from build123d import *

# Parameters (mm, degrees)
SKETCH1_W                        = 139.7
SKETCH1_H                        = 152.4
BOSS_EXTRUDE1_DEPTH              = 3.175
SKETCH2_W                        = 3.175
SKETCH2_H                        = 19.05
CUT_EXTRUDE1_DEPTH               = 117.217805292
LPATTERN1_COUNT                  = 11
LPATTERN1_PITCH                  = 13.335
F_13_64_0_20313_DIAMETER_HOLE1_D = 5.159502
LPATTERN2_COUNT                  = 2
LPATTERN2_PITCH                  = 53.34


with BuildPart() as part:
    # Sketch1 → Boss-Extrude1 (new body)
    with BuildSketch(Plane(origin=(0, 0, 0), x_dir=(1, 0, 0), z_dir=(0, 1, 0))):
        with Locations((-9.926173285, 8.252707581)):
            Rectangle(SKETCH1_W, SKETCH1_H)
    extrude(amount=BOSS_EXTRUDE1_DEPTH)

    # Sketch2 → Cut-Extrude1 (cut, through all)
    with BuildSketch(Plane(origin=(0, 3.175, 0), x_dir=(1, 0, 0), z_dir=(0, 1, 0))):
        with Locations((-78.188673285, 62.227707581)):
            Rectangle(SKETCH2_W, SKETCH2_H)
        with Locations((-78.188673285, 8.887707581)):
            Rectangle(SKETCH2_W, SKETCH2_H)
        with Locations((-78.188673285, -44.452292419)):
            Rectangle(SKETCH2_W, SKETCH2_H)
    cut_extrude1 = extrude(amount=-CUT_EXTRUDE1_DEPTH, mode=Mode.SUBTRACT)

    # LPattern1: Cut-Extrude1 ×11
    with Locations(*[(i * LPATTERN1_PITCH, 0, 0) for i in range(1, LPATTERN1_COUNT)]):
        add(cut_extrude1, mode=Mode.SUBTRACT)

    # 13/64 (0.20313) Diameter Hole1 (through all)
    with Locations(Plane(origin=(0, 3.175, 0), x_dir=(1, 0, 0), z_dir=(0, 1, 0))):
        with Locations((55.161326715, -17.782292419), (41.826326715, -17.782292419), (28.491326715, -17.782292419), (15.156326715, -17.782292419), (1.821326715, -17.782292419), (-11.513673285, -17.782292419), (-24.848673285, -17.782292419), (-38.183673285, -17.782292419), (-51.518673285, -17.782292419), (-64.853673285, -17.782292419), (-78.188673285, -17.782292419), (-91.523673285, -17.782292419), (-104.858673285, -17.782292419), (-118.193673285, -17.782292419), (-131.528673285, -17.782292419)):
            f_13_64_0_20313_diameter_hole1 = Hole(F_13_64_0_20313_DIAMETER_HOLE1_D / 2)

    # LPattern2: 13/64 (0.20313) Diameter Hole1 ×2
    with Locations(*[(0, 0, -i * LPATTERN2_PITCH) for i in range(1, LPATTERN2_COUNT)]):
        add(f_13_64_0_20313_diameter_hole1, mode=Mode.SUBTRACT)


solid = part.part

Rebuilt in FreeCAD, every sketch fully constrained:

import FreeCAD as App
import Part
import Sketcher
from FreeCAD import Vector
Q = App.Units.Quantity

doc = App.newDocument("Part")
body = doc.addObject("PartDesign::Body", "Body")

# Sketch on XZ plane
sketch1 = doc.addObject("Sketcher::SketchObject", "Sketch")
body.addObject(sketch1)
sketch1.AttachmentSupport = (doc.XZ_Plane, [""])
sketch1.MapMode = "FlatFace"
sketch1.addGeometry(Part.LineSegment(Vector(-79.776173, -84.452708, 0), Vector(-79.776173, 67.947292, 0)), False)
sketch1.addGeometry(Part.LineSegment(Vector(-79.776173, 67.947292, 0), Vector(59.923827, 67.947292, 0)), False)
sketch1.addGeometry(Part.LineSegment(Vector(59.923827, 67.947292, 0), Vector(59.923827, -84.452708, 0)), False)
sketch1.addGeometry(Part.LineSegment(Vector(59.923827, -84.452708, 0), Vector(-79.776173, -84.452708, 0)), False)
sketch1.addConstraint(Sketcher.Constraint("Coincident", 0, 2, 1, 1))
sketch1.addConstraint(Sketcher.Constraint("Coincident", 1, 2, 2, 1))
sketch1.addConstraint(Sketcher.Constraint("Coincident", 2, 2, 3, 1))
sketch1.addConstraint(Sketcher.Constraint("Coincident", 3, 2, 0, 1))
sketch1.addConstraint(Sketcher.Constraint("Vertical", 0))
sketch1.addConstraint(Sketcher.Constraint("Horizontal", 1))
sketch1.addConstraint(Sketcher.Constraint("Vertical", 2))
sketch1.addConstraint(Sketcher.Constraint("Horizontal", 3))
sketch1.addConstraint(Sketcher.Constraint("DistanceY", 0, 1, 0, 2, Q("6 in")))
sketch1.addConstraint(Sketcher.Constraint("DistanceX", 1, 1, 1, 2, Q("5.5 in")))
sketch1.addConstraint(Sketcher.Constraint("DistanceX", 0, 2, -1, 1, Q("79.776173 mm")))
sketch1.addConstraint(Sketcher.Constraint("DistanceY", -1, 1, 0, 2, Q("67.947292 mm")))
pad1 = doc.addObject("PartDesign::Pad", "Pad")
body.addObject(pad1)
pad1.Profile = sketch1
pad1.Length = Q("0.125 in")
pad1.Reversed = True

# Sketch on XZ plane
sketch2 = doc.addObject("Sketcher::SketchObject", "Sketch001")
body.addObject(sketch2)
sketch2.AttachmentSupport = (doc.XZ_Plane, [""])
sketch2.MapMode = "FlatFace"
sketch2.AttachmentOffset = App.Placement(Vector(0, 0, -0.125 * 25.4), App.Rotation())
sketch2.addGeometry(Part.LineSegment(Vector(-79.776173, -71.752708, 0), Vector(-79.776173, -52.702708, 0)), False)
sketch2.addGeometry(Part.LineSegment(Vector(-79.776173, -52.702708, 0), Vector(-76.601173, -52.702708, 0)), False)
sketch2.addGeometry(Part.LineSegment(Vector(-76.601173, -52.702708, 0), Vector(-76.601173, -71.752708, 0)), False)
sketch2.addGeometry(Part.LineSegment(Vector(-76.601173, -71.752708, 0), Vector(-79.776173, -71.752708, 0)), False)
sketch2.addGeometry(Part.LineSegment(Vector(-79.776173, -18.412708, 0), Vector(-79.776173, 0.637292, 0)), False)
sketch2.addGeometry(Part.LineSegment(Vector(-79.776173, 0.637292, 0), Vector(-76.601173, 0.637292, 0)), False)
sketch2.addGeometry(Part.LineSegment(Vector(-76.601173, 0.637292, 0), Vector(-76.601173, -18.412708, 0)), False)
sketch2.addGeometry(Part.LineSegment(Vector(-76.601173, -18.412708, 0), Vector(-79.776173, -18.412708, 0)), False)
sketch2.addGeometry(Part.LineSegment(Vector(-79.776173, 34.927292, 0), Vector(-79.776173, 53.977292, 0)), False)
sketch2.addGeometry(Part.LineSegment(Vector(-79.776173, 53.977292, 0), Vector(-76.601173, 53.977292, 0)), False)
sketch2.addGeometry(Part.LineSegment(Vector(-76.601173, 53.977292, 0), Vector(-76.601173, 34.927292, 0)), False)
sketch2.addGeometry(Part.LineSegment(Vector(-76.601173, 34.927292, 0), Vector(-79.776173, 34.927292, 0)), False)
sketch2.addConstraint(Sketcher.Constraint("Coincident", 0, 2, 1, 1))
sketch2.addConstraint(Sketcher.Constraint("Coincident", 1, 2, 2, 1))
sketch2.addConstraint(Sketcher.Constraint("Coincident", 2, 2, 3, 1))
sketch2.addConstraint(Sketcher.Constraint("Coincident", 3, 2, 0, 1))
sketch2.addConstraint(Sketcher.Constraint("Coincident", 4, 2, 5, 1))
sketch2.addConstraint(Sketcher.Constraint("Coincident", 5, 2, 6, 1))
sketch2.addConstraint(Sketcher.Constraint("Coincident", 6, 2, 7, 1))
sketch2.addConstraint(Sketcher.Constraint("Coincident", 7, 2, 4, 1))
sketch2.addConstraint(Sketcher.Constraint("Coincident", 8, 2, 9, 1))
sketch2.addConstraint(Sketcher.Constraint("Coincident", 9, 2, 10, 1))
sketch2.addConstraint(Sketcher.Constraint("Coincident", 10, 2, 11, 1))
sketch2.addConstraint(Sketcher.Constraint("Coincident", 11, 2, 8, 1))
sketch2.addConstraint(Sketcher.Constraint("Vertical", 0))
sketch2.addConstraint(Sketcher.Constraint("Horizontal", 1))
sketch2.addConstraint(Sketcher.Constraint("Vertical", 2))
sketch2.addConstraint(Sketcher.Constraint("Horizontal", 3))
sketch2.addConstraint(Sketcher.Constraint("Vertical", 4))
sketch2.addConstraint(Sketcher.Constraint("Horizontal", 5))
sketch2.addConstraint(Sketcher.Constraint("Vertical", 6))
sketch2.addConstraint(Sketcher.Constraint("Horizontal", 7))
sketch2.addConstraint(Sketcher.Constraint("Vertical", 8))
sketch2.addConstraint(Sketcher.Constraint("Horizontal", 9))
sketch2.addConstraint(Sketcher.Constraint("Vertical", 10))
sketch2.addConstraint(Sketcher.Constraint("Horizontal", 11))
sketch2.addConstraint(Sketcher.Constraint("Vertical", 3, 2, 4, 2))
sketch2.addConstraint(Sketcher.Constraint("Vertical", 2, 2, 5, 2))
sketch2.addConstraint(Sketcher.Constraint("Vertical", 7, 2, 8, 2))
sketch2.addConstraint(Sketcher.Constraint("Vertical", 6, 2, 9, 2))
sketch2.addConstraint(Sketcher.Constraint("Equal", 2, 4))
sketch2.addConstraint(Sketcher.Constraint("Equal", 6, 8))
sketch2.addConstraint(Sketcher.Constraint("DistanceY", 0, 1, 0, 2, Q("0.75 in")))
sketch2.addConstraint(Sketcher.Constraint("DistanceY", 0, 2, 4, 2, Q("2.1 in")))
sketch2.addConstraint(Sketcher.Constraint("DistanceY", 4, 2, 8, 2, Q("2.1 in")))
sketch2.addConstraint(Sketcher.Constraint("DistanceX", 1, 1, 1, 2, Q("0.125 in")))
sketch2.addConstraint(Sketcher.Constraint("DistanceX", 0, 2, -1, 1, Q("79.776173 mm")))
sketch2.addConstraint(Sketcher.Constraint("DistanceY", 0, 2, -1, 1, Q("52.702708 mm")))
pocket1 = doc.addObject("PartDesign::Pocket", "Pocket")
body.addObject(pocket1)
pocket1.Profile = sketch2
pocket1.Type = "ThroughAll"
pocket1.Reversed = True
doc.recompute()

linearpattern = doc.addObject("PartDesign::LinearPattern", "LinearPattern")
body.addObject(linearpattern)
linearpattern.Originals = [pocket1]
linearpattern.Direction = (doc.X_Axis, [""])
linearpattern.Mode = "offset"
linearpattern.Offset = Q("0.525 in")
linearpattern.Occurrences = 11
body.Tip = linearpattern

# Sketch on XZ plane
sketch3 = doc.addObject("Sketcher::SketchObject", "Sketch002")
body.addObject(sketch3)
sketch3.AttachmentSupport = (doc.XZ_Plane, [""])
sketch3.MapMode = "FlatFace"
sketch3.AttachmentOffset = App.Placement(Vector(0, 0, -0.125 * 25.4), App.Rotation())
sketch3.addGeometry(Part.Circle(Vector(55.161327, 17.782292, 0), Vector(0, 0, 1), 2.579751), False)
sketch3.addGeometry(Part.Circle(Vector(41.826327, 17.782292, 0), Vector(0, 0, 1), 2.579751), False)
sketch3.addGeometry(Part.Circle(Vector(28.491327, 17.782292, 0), Vector(0, 0, 1), 2.579751), False)
sketch3.addGeometry(Part.Circle(Vector(15.156327, 17.782292, 0), Vector(0, 0, 1), 2.579751), False)
sketch3.addGeometry(Part.Circle(Vector(1.821327, 17.782292, 0), Vector(0, 0, 1), 2.579751), False)
sketch3.addGeometry(Part.Circle(Vector(-11.513673, 17.782292, 0), Vector(0, 0, 1), 2.579751), False)
sketch3.addGeometry(Part.Circle(Vector(-24.848673, 17.782292, 0), Vector(0, 0, 1), 2.579751), False)
sketch3.addGeometry(Part.Circle(Vector(-38.183673, 17.782292, 0), Vector(0, 0, 1), 2.579751), False)
sketch3.addGeometry(Part.Circle(Vector(-51.518673, 17.782292, 0), Vector(0, 0, 1), 2.579751), False)
sketch3.addGeometry(Part.Circle(Vector(-64.853673, 17.782292, 0), Vector(0, 0, 1), 2.579751), False)
sketch3.addGeometry(Part.Circle(Vector(-78.188673, 17.782292, 0), Vector(0, 0, 1), 2.579751), False)
sketch3.addGeometry(Part.Circle(Vector(-91.523673, 17.782292, 0), Vector(0, 0, 1), 2.579751), False)
sketch3.addGeometry(Part.Circle(Vector(-104.858673, 17.782292, 0), Vector(0, 0, 1), 2.579751), False)
sketch3.addGeometry(Part.Circle(Vector(-118.193673, 17.782292, 0), Vector(0, 0, 1), 2.579751), False)
sketch3.addGeometry(Part.Circle(Vector(-131.528673, 17.782292, 0), Vector(0, 0, 1), 2.579751), False)
sketch3.addConstraint(Sketcher.Constraint("Equal", 0, 1))
sketch3.addConstraint(Sketcher.Constraint("Equal", 1, 2))
sketch3.addConstraint(Sketcher.Constraint("Equal", 2, 3))
sketch3.addConstraint(Sketcher.Constraint("Equal", 3, 4))
sketch3.addConstraint(Sketcher.Constraint("Equal", 4, 5))
sketch3.addConstraint(Sketcher.Constraint("Equal", 5, 6))
sketch3.addConstraint(Sketcher.Constraint("Equal", 6, 7))
sketch3.addConstraint(Sketcher.Constraint("Equal", 7, 8))
sketch3.addConstraint(Sketcher.Constraint("Equal", 8, 9))
sketch3.addConstraint(Sketcher.Constraint("Equal", 9, 10))
sketch3.addConstraint(Sketcher.Constraint("Equal", 10, 11))
sketch3.addConstraint(Sketcher.Constraint("Equal", 11, 12))
sketch3.addConstraint(Sketcher.Constraint("Equal", 12, 13))
sketch3.addConstraint(Sketcher.Constraint("Equal", 13, 14))
sketch3.addConstraint(Sketcher.Constraint("Horizontal", 0, 3, 1, 3))
sketch3.addConstraint(Sketcher.Constraint("Horizontal", 1, 3, 2, 3))
sketch3.addConstraint(Sketcher.Constraint("Horizontal", 2, 3, 3, 3))
sketch3.addConstraint(Sketcher.Constraint("Horizontal", 3, 3, 4, 3))
sketch3.addConstraint(Sketcher.Constraint("Horizontal", 4, 3, 5, 3))
sketch3.addConstraint(Sketcher.Constraint("Horizontal", 5, 3, 6, 3))
sketch3.addConstraint(Sketcher.Constraint("Horizontal", 6, 3, 7, 3))
sketch3.addConstraint(Sketcher.Constraint("Horizontal", 7, 3, 8, 3))
sketch3.addConstraint(Sketcher.Constraint("Horizontal", 8, 3, 9, 3))
sketch3.addConstraint(Sketcher.Constraint("Horizontal", 9, 3, 10, 3))
sketch3.addConstraint(Sketcher.Constraint("Horizontal", 10, 3, 11, 3))
sketch3.addConstraint(Sketcher.Constraint("Horizontal", 11, 3, 12, 3))
sketch3.addConstraint(Sketcher.Constraint("Horizontal", 12, 3, 13, 3))
sketch3.addConstraint(Sketcher.Constraint("Horizontal", 13, 3, 14, 3))
sketch3.addConstraint(Sketcher.Constraint("DistanceX", 4, 3, 0, 3, Q("2.1 in")))
sketch3.addConstraint(Sketcher.Constraint("DistanceX", 5, 3, 1, 3, Q("2.1 in")))
sketch3.addConstraint(Sketcher.Constraint("DistanceX", 6, 3, 2, 3, Q("2.1 in")))
sketch3.addConstraint(Sketcher.Constraint("DistanceX", 7, 3, 3, 3, Q("2.1 in")))
sketch3.addConstraint(Sketcher.Constraint("DistanceX", 8, 3, 4, 3, Q("2.1 in")))
sketch3.addConstraint(Sketcher.Constraint("DistanceX", 9, 3, 5, 3, Q("2.1 in")))
sketch3.addConstraint(Sketcher.Constraint("DistanceX", 10, 3, 6, 3, Q("2.1 in")))
sketch3.addConstraint(Sketcher.Constraint("DistanceX", 11, 3, 7, 3, Q("2.1 in")))
sketch3.addConstraint(Sketcher.Constraint("DistanceX", 12, 3, 8, 3, Q("2.1 in")))
sketch3.addConstraint(Sketcher.Constraint("DistanceX", 13, 3, 9, 3, Q("2.1 in")))
sketch3.addConstraint(Sketcher.Constraint("DistanceX", 14, 3, 10, 3, Q("2.1 in")))
sketch3.addConstraint(Sketcher.Constraint("Diameter", 0, Q("5.159502 mm")))
sketch3.addConstraint(Sketcher.Constraint("DistanceX", 2, 3, 0, 3, Q("1.05 in")))
sketch3.addConstraint(Sketcher.Constraint("DistanceX", 3, 3, 1, 3, Q("1.05 in")))
sketch3.addConstraint(Sketcher.Constraint("DistanceX", 1, 3, 0, 3, Q("0.525 in")))
sketch3.addConstraint(Sketcher.Constraint("DistanceX", -1, 1, 0, 3, Q("55.161327 mm")))
sketch3.addConstraint(Sketcher.Constraint("DistanceY", -1, 1, 0, 3, Q("17.782292 mm")))
doc.recompute()
hole = doc.addObject("PartDesign::Hole", "Hole")
body.addObject(hole)
hole.Profile = sketch3
hole.ThreadType = "None"
hole.Diameter = 5.159502
hole.DepthType = "ThroughAll"
hole.Reversed = True
doc.recompute()

linearpattern2 = doc.addObject("PartDesign::LinearPattern", "LinearPattern001")
body.addObject(linearpattern2)
linearpattern2.Originals = [hole]
linearpattern2.Direction = (doc.Z_Axis, [""])
linearpattern2.Mode = "offset"
linearpattern2.Offset = Q("2.1 in")
linearpattern2.Occurrences = 2
linearpattern2.Reversed = True
body.Tip = linearpattern2

doc.recompute()
